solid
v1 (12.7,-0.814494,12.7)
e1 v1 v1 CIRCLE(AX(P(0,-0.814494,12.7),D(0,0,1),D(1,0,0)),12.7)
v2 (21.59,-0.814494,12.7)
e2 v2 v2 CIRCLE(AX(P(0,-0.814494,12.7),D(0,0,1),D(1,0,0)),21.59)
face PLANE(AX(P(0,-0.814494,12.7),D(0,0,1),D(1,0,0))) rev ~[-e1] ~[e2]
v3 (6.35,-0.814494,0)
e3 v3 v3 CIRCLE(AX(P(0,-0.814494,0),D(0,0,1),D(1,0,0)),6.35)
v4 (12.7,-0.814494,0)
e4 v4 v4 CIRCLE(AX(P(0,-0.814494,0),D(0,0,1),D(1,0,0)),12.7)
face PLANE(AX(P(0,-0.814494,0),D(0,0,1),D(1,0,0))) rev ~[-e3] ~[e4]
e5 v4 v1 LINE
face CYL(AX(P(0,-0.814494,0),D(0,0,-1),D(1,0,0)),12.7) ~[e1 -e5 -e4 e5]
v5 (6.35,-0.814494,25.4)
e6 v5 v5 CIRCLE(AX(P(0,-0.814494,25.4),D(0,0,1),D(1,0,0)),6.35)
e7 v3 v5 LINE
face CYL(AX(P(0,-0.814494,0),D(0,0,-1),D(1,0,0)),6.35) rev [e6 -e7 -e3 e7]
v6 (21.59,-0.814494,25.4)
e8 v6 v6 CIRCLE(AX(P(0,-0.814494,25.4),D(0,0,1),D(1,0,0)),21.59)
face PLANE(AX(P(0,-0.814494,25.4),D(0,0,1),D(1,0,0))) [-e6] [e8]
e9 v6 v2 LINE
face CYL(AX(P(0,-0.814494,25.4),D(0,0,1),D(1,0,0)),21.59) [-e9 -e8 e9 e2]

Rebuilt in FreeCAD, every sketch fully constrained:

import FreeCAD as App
import Part
import Sketcher
from FreeCAD import Vector
Q = App.Units.Quantity

doc = App.newDocument("Part")
params = doc.addObject("Spreadsheet::Sheet", "Params")
for row, (alias, value) in enumerate([
    ("sketch1_diameter", "1 in"),
    ("sketch1_diameter2", "0.5 in"),
    ("pad1_length", "1 in"),
    ("sketch2_diameter", "1 in"),
    ("sketch2_diameter2", "1.7 in"),
    ("pad2_length", "0.5 in"),
], start=1):
    params.set(f"A{row}", alias)
    params.set(f"B{row}", "=" + value)
    params.setAlias(f"B{row}", alias)

body = doc.addObject("PartDesign::Body", "Body")

# Sketch on XY plane
sketch1 = body.newObject("Sketcher::SketchObject", "Sketch")
sketch1.AttachmentSupport = (doc.getObject("XY_Plane"), [""])
sketch1.MapMode = "FlatFace"
sketch1.addGeometry([
    Part.Circle(Vector(0, 39.825506, 0), Vector(0, 0, 1), 12.7),
    Part.Circle(Vector(0, 39.825506, 0), Vector(0, 0, 1), 6.35),
], False)
sketch1.addConstraint([
    Sketcher.Constraint("Coincident", 1, 3, 0, 3),
    Sketcher.Constraint("PointOnObject", 0, 3, -2),
    Sketcher.Constraint("Diameter", 0, Q("1 in")),
    Sketcher.Constraint("Diameter", 1, Q("0.5 in")),
    Sketcher.Constraint("DistanceY", -1, 1, 0, 3, 39.825506),
])
sketch1.setExpression("Constraints[2]", "Params.sketch1_diameter")
sketch1.setExpression("Constraints[3]", "Params.sketch1_diameter2")
pad1 = body.newObject("PartDesign::Pad", "Pad")
pad1.Profile = sketch1
pad1.setExpression("Length", "Params.pad1_length")

# Sketch on XY plane
sketch2 = body.newObject("Sketcher::SketchObject", "Sketch001")
sketch2.AttachmentSupport = (doc.getObject("XY_Plane"), [""])
sketch2.MapMode = "FlatFace"
sketch2.AttachmentOffset = App.Placement(Vector(0, 0, 1 * 25.4), App.Rotation())
sketch2.addGeometry([
    Part.Circle(Vector(0, 39.825506, 0), Vector(0, 0, 1), 21.59),
    Part.Circle(Vector(0, 39.825506, 0), Vector(0, 0, 1), 12.7),
], False)
sketch2.addConstraint([
    Sketcher.Constraint("Coincident", 1, 3, 0, 3),
    Sketcher.Constraint("PointOnObject", 0, 3, -2),
    Sketcher.Constraint("Diameter", 1, Q("1 in")),
    Sketcher.Constraint("Diameter", 0, Q("1.7 in")),
    Sketcher.Constraint("DistanceY", -1, 1, 0, 3, 39.825506),
])
sketch2.setExpression("Constraints[2]", "Params.sketch2_diameter")
sketch2.setExpression("Constraints[3]", "Params.sketch2_diameter2")
pad2 = body.newObject("PartDesign::Pad", "Pad001")
pad2.Profile = sketch2
pad2.setExpression("Length", "Params.pad2_length")
pad2.Reversed = True
body2 = doc.addObject("PartDesign::Body", "Body001")
doc.recompute()

body.Placement = App.Placement(Vector(0, -40.64, 0), App.Rotation(Vector(0, 0, 1), 0))
boolean = body2.newObject("PartDesign::Boolean", "Boolean")
boolean.Type = "Fuse"
boolean.addObjects([body])

doc.recompute()
